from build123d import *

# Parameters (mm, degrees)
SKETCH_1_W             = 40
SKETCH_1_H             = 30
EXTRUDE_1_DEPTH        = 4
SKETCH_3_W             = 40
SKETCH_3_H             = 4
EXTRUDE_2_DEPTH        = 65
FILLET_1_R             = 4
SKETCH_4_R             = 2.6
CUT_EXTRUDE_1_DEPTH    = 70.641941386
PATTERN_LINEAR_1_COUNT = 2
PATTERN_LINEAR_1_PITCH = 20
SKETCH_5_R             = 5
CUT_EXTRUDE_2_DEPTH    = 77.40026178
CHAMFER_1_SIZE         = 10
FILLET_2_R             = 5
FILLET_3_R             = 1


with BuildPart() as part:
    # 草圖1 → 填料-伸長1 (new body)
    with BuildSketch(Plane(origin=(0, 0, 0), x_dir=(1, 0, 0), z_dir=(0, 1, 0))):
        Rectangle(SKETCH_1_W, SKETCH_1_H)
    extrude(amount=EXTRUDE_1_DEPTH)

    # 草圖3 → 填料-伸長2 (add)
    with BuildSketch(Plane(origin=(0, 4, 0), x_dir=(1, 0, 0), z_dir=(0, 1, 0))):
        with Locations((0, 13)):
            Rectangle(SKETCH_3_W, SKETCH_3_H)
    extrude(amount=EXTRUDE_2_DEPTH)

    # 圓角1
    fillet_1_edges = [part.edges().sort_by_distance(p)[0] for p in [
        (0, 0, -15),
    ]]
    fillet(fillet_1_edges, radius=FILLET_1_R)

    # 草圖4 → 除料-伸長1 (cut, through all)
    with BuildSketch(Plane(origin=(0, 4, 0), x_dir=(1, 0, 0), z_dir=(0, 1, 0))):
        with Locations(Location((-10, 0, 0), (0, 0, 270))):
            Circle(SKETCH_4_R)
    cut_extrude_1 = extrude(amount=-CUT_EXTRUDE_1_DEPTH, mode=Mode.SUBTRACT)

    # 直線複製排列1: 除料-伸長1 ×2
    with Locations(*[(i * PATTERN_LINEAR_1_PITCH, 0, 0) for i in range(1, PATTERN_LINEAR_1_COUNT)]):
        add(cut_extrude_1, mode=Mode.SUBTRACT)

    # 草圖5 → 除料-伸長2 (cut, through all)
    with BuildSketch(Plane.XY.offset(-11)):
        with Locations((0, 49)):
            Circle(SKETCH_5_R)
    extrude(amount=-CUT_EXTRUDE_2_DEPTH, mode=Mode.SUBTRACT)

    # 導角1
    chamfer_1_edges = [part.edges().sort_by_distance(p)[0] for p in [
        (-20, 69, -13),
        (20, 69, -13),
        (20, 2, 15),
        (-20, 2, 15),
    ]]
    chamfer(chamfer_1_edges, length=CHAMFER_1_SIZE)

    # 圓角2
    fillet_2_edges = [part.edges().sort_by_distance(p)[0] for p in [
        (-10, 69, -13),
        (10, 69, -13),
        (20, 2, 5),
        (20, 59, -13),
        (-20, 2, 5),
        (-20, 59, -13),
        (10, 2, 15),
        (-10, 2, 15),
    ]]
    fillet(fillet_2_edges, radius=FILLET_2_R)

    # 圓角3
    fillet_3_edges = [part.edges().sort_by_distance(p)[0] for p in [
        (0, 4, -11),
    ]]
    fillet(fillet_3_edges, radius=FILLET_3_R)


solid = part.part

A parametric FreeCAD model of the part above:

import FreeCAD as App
import Part
import Sketcher
from FreeCAD import Vector
Q = App.Units.Quantity


def edges_at(feature, points):
    """Names of the edges that pass closest to the given points."""
    edges = feature.Shape.Edges
    near = lambda p: min(range(len(edges)), key=lambda i: edges[i].distToShape(Part.Vertex(*p))[0])
    return sorted({f"Edge{near(p) + 1}" for p in points})


def add_polygon(sketch, points):
    """Adds a closed chain of lines whose ends are joined by coincident constraints."""
    first, n = sketch.GeometryCount, len(points)
    for a, b in zip(points, points[1:] + points[:1]):
        sketch.addGeometry(Part.LineSegment(App.Vector(*a, 0), App.Vector(*b, 0)), False)
    for i in range(n):
        sketch.addConstraint(Sketcher.Constraint("Coincident", first + i, 2, first + (i + 1) % n, 1))

doc = App.newDocument("Part")
params = doc.addObject("Spreadsheet::Sheet", "Params")
for row, (alias, value) in enumerate([
    ("sketch1_width", "40 mm"),
    ("sketch1_height", "30 mm"),
    ("pad1_length", "4 mm"),
    ("sketch2_width", "40 mm"),
    ("sketch2_height", "4 mm"),
    ("pad2_length", "65 mm"),
    ("fillet_radius", "4 mm"),
    ("sketch3_diameter", "5.2 mm"),
    ("linearpattern_pitch", "20 mm"),
    ("sketch4_diameter", "10 mm"),
    ("chamfer_size", "10 mm"),
    ("fillet2_radius", "5 mm"),
    ("fillet3_radius", "1 mm"),
], start=1):
    params.set(f"A{row}", alias)
    params.set(f"B{row}", "=" + value)
    params.setAlias(f"B{row}", alias)

body = doc.addObject("PartDesign::Body", "Body")

# Sketch on XZ plane
sketch1 = doc.addObject("Sketcher::SketchObject", "Sketch")
body.addObject(sketch1)
sketch1.AttachmentSupport = (doc.XZ_Plane, [""])
sketch1.MapMode = "FlatFace"
add_polygon(sketch1, [(-20, -15), (-20, 15), (20, 15), (20, -15)])  # lines 0-3
sketch1.addConstraint(Sketcher.Constraint("Vertical", 0))
sketch1.addConstraint(Sketcher.Constraint("Horizontal", 1))
sketch1.addConstraint(Sketcher.Constraint("Vertical", 2))
sketch1.addConstraint(Sketcher.Constraint("Horizontal", 3))
sketch1.addConstraint(Sketcher.Constraint("Symmetric", 0, 2, 2, 2, -1, 1))
sketch1.addConstraint(Sketcher.Constraint("DistanceX", 1, 1, 1, 2, Q("40 mm")))
sketch1.addConstraint(Sketcher.Constraint("DistanceY", 0, 1, 0, 2, Q("30 mm")))
sketch1.setExpression("Constraints[9]", "Params.sketch1_width")
sketch1.setExpression("Constraints[10]", "Params.sketch1_height")
pad1 = doc.addObject("PartDesign::Pad", "Pad")
body.addObject(pad1)
pad1.Profile = sketch1
pad1.setExpression("Length", "Params.pad1_length")
pad1.Reversed = True

# Sketch on XZ plane
sketch2 = doc.addObject("Sketcher::SketchObject", "Sketch001")
body.addObject(sketch2)
sketch2.AttachmentSupport = (doc.XZ_Plane, [""])
sketch2.MapMode = "FlatFace"
sketch2.AttachmentOffset = App.Placement(Vector(0, 0, -4), App.Rotation())
add_polygon(sketch2, [(-20, -15), (-20, -11), (20, -11), (20, -15)])  # lines 0-3
sketch2.addConstraint(Sketcher.Constraint("Vertical", 0))
sketch2.addConstraint(Sketcher.Constraint("Horizontal", 1))
sketch2.addConstraint(Sketcher.Constraint("Vertical", 2))
sketch2.addConstraint(Sketcher.Constraint("Horizontal", 3))
sketch2.addConstraint(Sketcher.Constraint("DistanceX", 1, 1, 1, 2, Q("40 mm")))
sketch2.addConstraint(Sketcher.Constraint("DistanceY", 0, 1, 0, 2, Q("4 mm")))
sketch2.addConstraint(Sketcher.Constraint("DistanceX", 0, 2, -1, 1, Q("20 mm")))
sketch2.addConstraint(Sketcher.Constraint("DistanceY", 0, 2, -1, 1, Q("11 mm")))
sketch2.setExpression("Constraints[8]", "Params.sketch2_width")
sketch2.setExpression("Constraints[9]", "Params.sketch2_height")
pad2 = doc.addObject("PartDesign::Pad", "Pad001")
body.addObject(pad2)
pad2.Profile = sketch2
pad2.setExpression("Length", "Params.pad2_length")
pad2.Reversed = True
doc.recompute()

fillet = doc.addObject("PartDesign::Fillet", "Fillet")
body.addObject(fillet)
fillet.Base = (pad2, edges_at(pad2, [(0, 0, -15)]))
fillet.setExpression("Radius", "Params.fillet_radius")

# Sketch on XZ plane
sketch3 = doc.addObject("Sketcher::SketchObject", "Sketch002")
body.addObject(sketch3)
sketch3.AttachmentSupport = (doc.XZ_Plane, [""])
sketch3.MapMode = "FlatFace"
sketch3.AttachmentOffset = App.Placement(Vector(0, 0, -4), App.Rotation())
sketch3.addGeometry(Part.Circle(Vector(-10, 0, 0), Vector(0, 0, 1), 2.6), False)
sketch3.addConstraint(Sketcher.Constraint("PointOnObject", 0, 3, -1))
sketch3.addConstraint(Sketcher.Constraint("Diameter", 0, Q("5.2 mm")))
sketch3.addConstraint(Sketcher.Constraint("DistanceX", 0, 3, -1, 1, Q("10 mm")))
sketch3.setExpression("Constraints[1]", "Params.sketch3_diameter")
pocket1 = doc.addObject("PartDesign::Pocket", "Pocket")
body.addObject(pocket1)
pocket1.Profile = sketch3
pocket1.Type = "ThroughAll"
pocket1.Reversed = True
doc.recompute()

linearpattern = doc.addObject("PartDesign::LinearPattern", "LinearPattern")
body.addObject(linearpattern)
linearpattern.Originals = [pocket1]
linearpattern.Direction = (doc.X_Axis, [""])
linearpattern.Mode = "offset"
linearpattern.setExpression("Offset", "Params.linearpattern_pitch")
linearpattern.Occurrences = 2
body.Tip = linearpattern

# Sketch on XY plane
sketch4 = doc.addObject("Sketcher::SketchObject", "Sketch003")
body.addObject(sketch4)
sketch4.AttachmentSupport = (doc.XY_Plane, [""])
sketch4.MapMode = "FlatFace"
sketch4.AttachmentOffset = App.Placement(Vector(0, 0, -11), App.Rotation())
sketch4.addGeometry(Part.Circle(Vector(0, 49, 0), Vector(0, 0, 1), 5), False)
sketch4.addConstraint(Sketcher.Constraint("PointOnObject", 0, 3, -2))
sketch4.addConstraint(Sketcher.Constraint("Diameter", 0, Q("10 mm")))
sketch4.addConstraint(Sketcher.Constraint("DistanceY", -1, 1, 0, 3, Q("49 mm")))
sketch4.setExpression("Constraints[1]", "Params.sketch4_diameter")
pocket2 = doc.addObject("PartDesign::Pocket", "Pocket001")
body.addObject(pocket2)
pocket2.Profile = sketch4
pocket2.Type = "ThroughAll"
doc.recompute()

chamfer = doc.addObject("PartDesign::Chamfer", "Chamfer")
body.addObject(chamfer)
chamfer.Base = (pocket2, edges_at(pocket2, [
    (-20, 69, -13),
    (20, 69, -13),
    (20, 2, 15),
    (-20, 2, 15),
]))
chamfer.setExpression("Size", "Params.chamfer_size")
doc.recompute()

fillet2 = doc.addObject("PartDesign::Fillet", "Fillet001")
body.addObject(fillet2)
fillet2.Base = (chamfer, edges_at(chamfer, [
    (-10, 69, -13),
    (10, 69, -13),
    (20, 2, 5),
    (20, 59, -13),
    (-20, 2, 5),
    (-20, 59, -13),
    (10, 2, 15),
    (-10, 2, 15),
]))
fillet2.setExpression("Radius", "Params.fillet2_radius")
doc.recompute()

fillet3 = doc.addObject("PartDesign::Fillet", "Fillet002")
body.addObject(fillet3)
fillet3.Base = (fillet2, edges_at(fillet2, [(0, 4, -11)]))
fillet3.setExpression("Radius", "Params.fillet3_radius")

doc.recompute()
